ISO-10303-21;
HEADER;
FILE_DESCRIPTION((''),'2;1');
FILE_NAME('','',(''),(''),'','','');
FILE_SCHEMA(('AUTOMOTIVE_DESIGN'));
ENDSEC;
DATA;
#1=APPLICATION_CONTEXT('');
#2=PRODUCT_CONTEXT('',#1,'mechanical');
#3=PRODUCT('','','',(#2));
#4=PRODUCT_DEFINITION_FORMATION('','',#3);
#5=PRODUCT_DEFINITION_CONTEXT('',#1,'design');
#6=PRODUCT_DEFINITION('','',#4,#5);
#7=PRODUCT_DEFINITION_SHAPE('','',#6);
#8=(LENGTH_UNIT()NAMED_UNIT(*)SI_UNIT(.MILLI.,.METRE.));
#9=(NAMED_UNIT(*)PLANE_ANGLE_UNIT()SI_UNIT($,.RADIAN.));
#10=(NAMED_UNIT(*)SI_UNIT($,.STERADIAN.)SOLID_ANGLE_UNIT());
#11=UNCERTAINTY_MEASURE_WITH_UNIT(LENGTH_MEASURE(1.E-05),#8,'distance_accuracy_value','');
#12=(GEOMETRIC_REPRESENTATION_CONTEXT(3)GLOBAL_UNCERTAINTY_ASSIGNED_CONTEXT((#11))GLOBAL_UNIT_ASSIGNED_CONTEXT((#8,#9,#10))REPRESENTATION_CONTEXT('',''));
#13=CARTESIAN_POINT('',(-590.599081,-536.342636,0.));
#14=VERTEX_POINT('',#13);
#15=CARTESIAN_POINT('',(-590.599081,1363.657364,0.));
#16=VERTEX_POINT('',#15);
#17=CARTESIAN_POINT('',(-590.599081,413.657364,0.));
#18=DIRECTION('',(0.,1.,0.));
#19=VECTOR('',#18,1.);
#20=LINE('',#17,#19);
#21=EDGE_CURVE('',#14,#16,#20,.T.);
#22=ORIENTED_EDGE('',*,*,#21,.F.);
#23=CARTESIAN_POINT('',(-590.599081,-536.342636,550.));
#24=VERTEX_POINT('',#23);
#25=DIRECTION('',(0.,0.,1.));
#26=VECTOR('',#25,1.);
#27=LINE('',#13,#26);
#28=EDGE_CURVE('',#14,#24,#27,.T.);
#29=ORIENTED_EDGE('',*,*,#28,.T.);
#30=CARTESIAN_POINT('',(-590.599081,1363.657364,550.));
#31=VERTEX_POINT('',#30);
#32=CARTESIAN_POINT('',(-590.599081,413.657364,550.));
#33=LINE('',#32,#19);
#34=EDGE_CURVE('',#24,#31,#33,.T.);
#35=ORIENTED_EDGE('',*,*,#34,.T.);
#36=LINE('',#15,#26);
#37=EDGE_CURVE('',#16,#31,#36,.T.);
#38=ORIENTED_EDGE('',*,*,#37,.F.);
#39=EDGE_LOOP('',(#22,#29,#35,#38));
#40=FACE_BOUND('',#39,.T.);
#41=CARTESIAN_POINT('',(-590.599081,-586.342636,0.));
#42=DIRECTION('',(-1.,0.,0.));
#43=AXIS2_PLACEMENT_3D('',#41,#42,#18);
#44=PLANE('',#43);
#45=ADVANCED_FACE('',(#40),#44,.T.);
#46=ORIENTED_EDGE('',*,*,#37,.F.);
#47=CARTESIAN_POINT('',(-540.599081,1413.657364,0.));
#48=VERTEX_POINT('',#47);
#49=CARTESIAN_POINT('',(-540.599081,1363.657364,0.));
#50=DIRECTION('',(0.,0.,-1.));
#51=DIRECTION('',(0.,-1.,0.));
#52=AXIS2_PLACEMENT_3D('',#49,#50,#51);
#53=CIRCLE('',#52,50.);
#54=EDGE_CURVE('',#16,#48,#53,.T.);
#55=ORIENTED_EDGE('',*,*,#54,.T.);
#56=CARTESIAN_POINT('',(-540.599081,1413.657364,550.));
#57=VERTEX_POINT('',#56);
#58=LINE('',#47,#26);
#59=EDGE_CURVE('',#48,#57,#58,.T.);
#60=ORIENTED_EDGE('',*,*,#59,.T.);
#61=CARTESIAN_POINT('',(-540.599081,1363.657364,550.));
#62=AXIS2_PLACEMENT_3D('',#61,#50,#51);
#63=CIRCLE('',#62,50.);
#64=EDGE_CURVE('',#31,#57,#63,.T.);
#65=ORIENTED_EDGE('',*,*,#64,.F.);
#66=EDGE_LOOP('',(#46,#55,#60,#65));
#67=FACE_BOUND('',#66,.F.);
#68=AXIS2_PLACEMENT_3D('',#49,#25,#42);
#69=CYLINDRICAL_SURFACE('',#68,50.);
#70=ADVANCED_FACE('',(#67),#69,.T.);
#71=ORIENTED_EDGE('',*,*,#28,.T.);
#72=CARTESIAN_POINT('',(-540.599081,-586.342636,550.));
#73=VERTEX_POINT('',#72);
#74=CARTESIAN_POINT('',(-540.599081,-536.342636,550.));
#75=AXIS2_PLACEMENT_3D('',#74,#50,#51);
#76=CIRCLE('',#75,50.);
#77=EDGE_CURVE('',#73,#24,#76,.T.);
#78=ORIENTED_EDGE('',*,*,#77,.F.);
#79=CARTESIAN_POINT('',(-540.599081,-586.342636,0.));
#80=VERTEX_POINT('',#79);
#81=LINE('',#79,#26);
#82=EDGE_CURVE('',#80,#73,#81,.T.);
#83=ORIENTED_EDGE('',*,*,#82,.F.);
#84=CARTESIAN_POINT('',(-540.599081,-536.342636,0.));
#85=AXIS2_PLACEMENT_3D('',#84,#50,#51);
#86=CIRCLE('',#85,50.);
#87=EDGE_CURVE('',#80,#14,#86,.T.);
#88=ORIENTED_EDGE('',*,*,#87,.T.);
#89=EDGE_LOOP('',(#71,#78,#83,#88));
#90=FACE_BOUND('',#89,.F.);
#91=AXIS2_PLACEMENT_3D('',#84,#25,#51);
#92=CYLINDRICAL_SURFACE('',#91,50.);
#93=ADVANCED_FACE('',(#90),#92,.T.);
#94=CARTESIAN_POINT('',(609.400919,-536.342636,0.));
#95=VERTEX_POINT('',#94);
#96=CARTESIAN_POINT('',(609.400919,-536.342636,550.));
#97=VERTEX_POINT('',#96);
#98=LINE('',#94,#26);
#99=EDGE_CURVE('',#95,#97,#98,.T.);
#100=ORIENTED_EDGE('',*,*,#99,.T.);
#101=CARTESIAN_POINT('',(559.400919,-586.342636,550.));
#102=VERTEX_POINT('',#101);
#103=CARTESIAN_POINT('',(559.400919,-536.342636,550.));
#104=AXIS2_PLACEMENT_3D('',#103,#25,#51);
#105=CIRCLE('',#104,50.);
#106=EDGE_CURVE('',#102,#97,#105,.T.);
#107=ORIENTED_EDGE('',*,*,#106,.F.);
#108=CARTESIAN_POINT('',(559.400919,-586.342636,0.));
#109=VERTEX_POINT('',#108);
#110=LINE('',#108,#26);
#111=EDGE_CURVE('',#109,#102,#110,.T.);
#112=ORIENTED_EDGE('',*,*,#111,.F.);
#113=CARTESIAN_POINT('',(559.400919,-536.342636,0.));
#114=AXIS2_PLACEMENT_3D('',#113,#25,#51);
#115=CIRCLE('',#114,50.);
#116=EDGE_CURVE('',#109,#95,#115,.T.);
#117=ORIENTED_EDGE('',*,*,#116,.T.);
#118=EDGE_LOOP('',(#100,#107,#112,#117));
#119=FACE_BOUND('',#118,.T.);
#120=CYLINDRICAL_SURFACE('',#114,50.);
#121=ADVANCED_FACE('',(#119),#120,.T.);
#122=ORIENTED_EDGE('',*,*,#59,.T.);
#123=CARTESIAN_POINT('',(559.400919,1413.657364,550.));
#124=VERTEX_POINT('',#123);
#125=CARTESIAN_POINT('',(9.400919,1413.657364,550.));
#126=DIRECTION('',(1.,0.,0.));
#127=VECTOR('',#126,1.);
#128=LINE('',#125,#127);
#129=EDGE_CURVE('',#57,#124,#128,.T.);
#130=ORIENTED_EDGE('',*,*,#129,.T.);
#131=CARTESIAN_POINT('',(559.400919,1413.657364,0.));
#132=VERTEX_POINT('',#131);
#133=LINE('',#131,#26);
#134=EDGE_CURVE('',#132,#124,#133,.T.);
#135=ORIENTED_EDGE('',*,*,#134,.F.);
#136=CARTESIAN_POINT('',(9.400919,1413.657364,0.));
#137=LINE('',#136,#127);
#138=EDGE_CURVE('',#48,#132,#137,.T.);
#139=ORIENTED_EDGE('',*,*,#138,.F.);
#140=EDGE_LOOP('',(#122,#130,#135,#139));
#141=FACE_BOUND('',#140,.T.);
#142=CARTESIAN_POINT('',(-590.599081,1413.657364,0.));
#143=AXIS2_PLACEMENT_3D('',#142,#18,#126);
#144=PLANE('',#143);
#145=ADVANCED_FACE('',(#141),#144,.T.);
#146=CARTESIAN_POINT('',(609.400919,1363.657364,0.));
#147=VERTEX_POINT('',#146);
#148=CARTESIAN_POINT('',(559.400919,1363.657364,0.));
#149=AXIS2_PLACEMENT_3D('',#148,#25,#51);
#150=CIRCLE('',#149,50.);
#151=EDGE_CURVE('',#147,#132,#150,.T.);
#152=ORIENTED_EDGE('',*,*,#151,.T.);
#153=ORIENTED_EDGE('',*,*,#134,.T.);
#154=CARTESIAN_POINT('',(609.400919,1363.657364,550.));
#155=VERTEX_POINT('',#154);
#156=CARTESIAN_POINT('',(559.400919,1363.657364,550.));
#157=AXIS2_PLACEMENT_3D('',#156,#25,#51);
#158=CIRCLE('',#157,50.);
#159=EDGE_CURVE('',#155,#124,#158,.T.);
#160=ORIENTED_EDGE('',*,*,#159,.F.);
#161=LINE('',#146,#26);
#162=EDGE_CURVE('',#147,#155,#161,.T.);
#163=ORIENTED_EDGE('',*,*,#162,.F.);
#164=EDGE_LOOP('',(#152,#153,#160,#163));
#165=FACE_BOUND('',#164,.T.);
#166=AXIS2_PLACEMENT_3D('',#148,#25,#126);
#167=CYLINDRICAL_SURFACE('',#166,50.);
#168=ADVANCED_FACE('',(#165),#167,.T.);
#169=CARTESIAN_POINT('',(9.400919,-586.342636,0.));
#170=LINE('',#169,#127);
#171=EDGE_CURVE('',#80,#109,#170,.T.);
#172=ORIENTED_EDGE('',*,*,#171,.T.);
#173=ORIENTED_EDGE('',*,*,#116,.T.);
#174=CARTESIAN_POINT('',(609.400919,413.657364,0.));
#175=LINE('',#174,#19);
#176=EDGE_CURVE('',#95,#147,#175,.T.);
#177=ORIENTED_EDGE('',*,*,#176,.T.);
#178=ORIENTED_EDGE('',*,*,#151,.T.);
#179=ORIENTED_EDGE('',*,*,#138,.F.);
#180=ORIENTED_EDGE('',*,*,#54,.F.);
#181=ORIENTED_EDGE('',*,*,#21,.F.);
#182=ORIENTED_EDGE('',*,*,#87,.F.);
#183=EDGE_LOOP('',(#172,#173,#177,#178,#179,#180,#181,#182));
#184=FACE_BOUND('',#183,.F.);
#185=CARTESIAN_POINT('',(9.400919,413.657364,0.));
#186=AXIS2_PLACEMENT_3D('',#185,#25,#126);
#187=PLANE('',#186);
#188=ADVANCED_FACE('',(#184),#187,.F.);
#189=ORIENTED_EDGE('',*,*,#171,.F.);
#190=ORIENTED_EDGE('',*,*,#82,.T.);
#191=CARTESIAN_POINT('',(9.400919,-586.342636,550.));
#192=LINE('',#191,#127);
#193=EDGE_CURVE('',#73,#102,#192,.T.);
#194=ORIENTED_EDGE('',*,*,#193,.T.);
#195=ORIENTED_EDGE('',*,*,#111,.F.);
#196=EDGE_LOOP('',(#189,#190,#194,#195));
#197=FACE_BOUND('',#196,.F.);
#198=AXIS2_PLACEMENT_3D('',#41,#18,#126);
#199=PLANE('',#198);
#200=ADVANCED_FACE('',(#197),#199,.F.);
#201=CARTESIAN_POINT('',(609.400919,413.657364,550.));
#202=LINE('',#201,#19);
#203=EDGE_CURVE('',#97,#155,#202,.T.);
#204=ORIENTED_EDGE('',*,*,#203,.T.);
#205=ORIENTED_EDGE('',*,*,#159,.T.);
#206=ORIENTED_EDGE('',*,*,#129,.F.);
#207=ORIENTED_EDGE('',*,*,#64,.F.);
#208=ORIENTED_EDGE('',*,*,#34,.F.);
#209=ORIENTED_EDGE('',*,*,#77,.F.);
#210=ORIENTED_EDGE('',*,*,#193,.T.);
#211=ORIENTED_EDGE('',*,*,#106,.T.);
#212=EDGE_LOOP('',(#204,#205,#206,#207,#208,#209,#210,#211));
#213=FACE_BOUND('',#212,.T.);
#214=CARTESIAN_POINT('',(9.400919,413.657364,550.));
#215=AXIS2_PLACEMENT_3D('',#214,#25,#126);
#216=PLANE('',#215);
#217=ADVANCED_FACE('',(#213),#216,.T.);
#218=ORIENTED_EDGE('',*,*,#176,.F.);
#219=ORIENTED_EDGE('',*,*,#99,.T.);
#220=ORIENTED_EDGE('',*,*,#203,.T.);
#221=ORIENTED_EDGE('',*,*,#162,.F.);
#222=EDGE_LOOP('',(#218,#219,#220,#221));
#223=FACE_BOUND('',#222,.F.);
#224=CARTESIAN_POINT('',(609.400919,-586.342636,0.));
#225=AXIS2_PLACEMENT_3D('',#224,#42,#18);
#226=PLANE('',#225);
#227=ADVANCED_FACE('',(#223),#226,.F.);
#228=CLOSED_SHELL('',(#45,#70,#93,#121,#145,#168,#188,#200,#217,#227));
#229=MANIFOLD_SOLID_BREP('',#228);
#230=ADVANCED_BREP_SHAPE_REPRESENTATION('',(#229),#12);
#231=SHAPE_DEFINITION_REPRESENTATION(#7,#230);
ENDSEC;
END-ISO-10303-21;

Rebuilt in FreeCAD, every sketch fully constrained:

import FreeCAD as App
import Part
import Sketcher

V = App.Vector
Q = App.Units.Quantity


def edges_at(feature, points):
    """Names of the edges that pass closest to the given points."""
    edges = feature.Shape.Edges
    near = lambda p: min(range(len(edges)), key=lambda i: edges[i].distToShape(Part.Vertex(*p))[0])
    return sorted({f"Edge{near(p) + 1}" for p in points})


def add_polygon(sketch, points):
    """Adds a closed chain of lines whose ends are joined by coincident constraints."""
    first, n = sketch.GeometryCount, len(points)
    for a, b in zip(points, points[1:] + points[:1]):
        sketch.addGeometry(Part.LineSegment(App.Vector(*a, 0), App.Vector(*b, 0)), False)
    for i in range(n):
        sketch.addConstraint(Sketcher.Constraint("Coincident", first + i, 2, first + (i + 1) % n, 1))

doc = App.newDocument("Part")
body = doc.addObject("PartDesign::Body", "Body")

# Sketch on XY plane
sketch1 = body.newObject("Sketcher::SketchObject", "Sketch")
sketch1.AttachmentSupport = (doc.getObject("XY_Plane"), [""])
sketch1.MapMode = "FlatFace"
add_polygon(sketch1, [(-591, 1414), (-591, -586), (609, -586), (609, 1414)])  # lines 0-3
sketch1.addConstraint([
    Sketcher.Constraint("Vertical", 0),
    Sketcher.Constraint("Horizontal", 1),
    Sketcher.Constraint("Vertical", 2),
    Sketcher.Constraint("Horizontal", 3),
    Sketcher.Constraint("DistanceX", 1, 1, 1, 2, Q("1200 mm")),
    Sketcher.Constraint("DistanceY", 0, 2, 0, 1, Q("2000 mm")),
    Sketcher.Constraint("DistanceX", 0, 2, -1, 1, Q("590.599081 mm")),
    Sketcher.Constraint("DistanceY", 0, 2, -1, 1, Q("586.342636 mm")),
])
pad1 = body.newObject("PartDesign::Pad", "Pad")
pad1.Profile = sketch1
pad1.Length = 550
doc.recompute()

fillet = body.newObject("PartDesign::Fillet", "Fillet")
fillet.Base = (pad1, edges_at(pad1, [(609.401, -586.343, 275)]))
fillet.Radius = 50
doc.recompute()

fillet2 = body.newObject("PartDesign::Fillet", "Fillet001")
fillet2.Base = (fillet, edges_at(fillet, [(-590.599, -586.343, 275)]))
fillet2.Radius = 50
doc.recompute()

fillet3 = body.newObject("PartDesign::Fillet", "Fillet002")
fillet3.Base = (fillet2, edges_at(fillet2, [(609.401, 1413.657, 275), (-590.599, 1413.657, 275)]))
fillet3.Radius = 50

doc.recompute()
